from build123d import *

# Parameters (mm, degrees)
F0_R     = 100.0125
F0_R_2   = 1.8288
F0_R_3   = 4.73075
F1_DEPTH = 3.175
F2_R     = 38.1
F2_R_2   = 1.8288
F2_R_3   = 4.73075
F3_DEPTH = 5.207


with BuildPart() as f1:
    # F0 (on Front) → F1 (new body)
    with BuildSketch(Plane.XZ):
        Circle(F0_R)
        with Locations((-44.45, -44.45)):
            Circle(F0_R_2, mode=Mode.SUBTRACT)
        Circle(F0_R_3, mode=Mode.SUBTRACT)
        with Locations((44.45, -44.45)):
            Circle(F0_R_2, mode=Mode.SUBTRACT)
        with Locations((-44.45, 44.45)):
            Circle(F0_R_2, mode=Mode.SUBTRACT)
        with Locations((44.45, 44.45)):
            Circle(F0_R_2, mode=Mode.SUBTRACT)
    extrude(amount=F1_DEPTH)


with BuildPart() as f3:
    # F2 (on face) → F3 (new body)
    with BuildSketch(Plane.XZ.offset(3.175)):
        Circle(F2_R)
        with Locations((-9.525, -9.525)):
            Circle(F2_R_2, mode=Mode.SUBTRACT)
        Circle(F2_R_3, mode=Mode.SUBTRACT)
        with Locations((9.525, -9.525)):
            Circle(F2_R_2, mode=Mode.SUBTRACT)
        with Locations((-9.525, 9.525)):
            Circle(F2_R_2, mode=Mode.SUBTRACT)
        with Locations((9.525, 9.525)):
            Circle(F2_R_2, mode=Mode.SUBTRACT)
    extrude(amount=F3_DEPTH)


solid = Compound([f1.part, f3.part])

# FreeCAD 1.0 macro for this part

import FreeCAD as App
import Part
import Sketcher
from FreeCAD import Vector
Q = App.Units.Quantity

doc = App.newDocument("Part")
body = doc.addObject("PartDesign::Body", "Body")

sketch1 = body.newObject("Sketcher::SketchObject", "Sketch")
sketch1.AttachmentSupport = (doc.getObject("XZ_Plane"), [""])
sketch1.MapMode = "FlatFace"
sketch1.addGeometry(Part.Circle(Vector(0, 0, 0), Vector(0, 0, 1), 100), False)
sketch1.addGeometry(Part.Circle(Vector(-44.5, -44.5, 0), Vector(0, 0, 1), 1.8), False)
sketch1.addGeometry(Part.Circle(Vector(44.5, -44.5, 0), Vector(0, 0, 1), 1.8), False)
sketch1.addGeometry(Part.Circle(Vector(-44.5, 44.5, 0), Vector(0, 0, 1), 1.8), False)
sketch1.addGeometry(Part.Circle(Vector(0, 0, 0), Vector(0, 0, 1), 4.7), False)
sketch1.addGeometry(Part.Circle(Vector(44.5, 44.5, 0), Vector(0, 0, 1), 1.8), False)
sketch1.addConstraint(Sketcher.Constraint("Coincident", 0, 3, -1, 1))
sketch1.addConstraint(Sketcher.Constraint("Coincident", 4, 3, -1, 1))
sketch1.addConstraint(Sketcher.Constraint("Equal", 1, 2))
sketch1.addConstraint(Sketcher.Constraint("Equal", 2, 3))
sketch1.addConstraint(Sketcher.Constraint("Equal", 3, 5))
sketch1.addConstraint(Sketcher.Constraint("Symmetric", 2, 3, 3, 3, -1, 1))
sketch1.addConstraint(Sketcher.Constraint("Symmetric", 1, 3, 5, 3, -1, 1))
sketch1.addConstraint(Sketcher.Constraint("Symmetric", 1, 3, 2, 3, -2))
sketch1.addConstraint(Sketcher.Constraint("Diameter", 0, Q("7.875 in")))
sketch1.addConstraint(Sketcher.Constraint("Diameter", 1, Q("0.144 in")))
sketch1.addConstraint(Sketcher.Constraint("Diameter", 4, Q("0.3725 in")))
sketch1.addConstraint(Sketcher.Constraint("DistanceX", 1, 3, 2, 3, Q("3.5 in")))
sketch1.addConstraint(Sketcher.Constraint("DistanceY", 1, 3, 3, 3, Q("3.5 in")))
pad1 = body.newObject("PartDesign::Pad", "Pad")
pad1.Profile = sketch1
pad1.Length = Q("0.125 in")
body2 = doc.addObject("PartDesign::Body", "Body001")

sketch2 = body2.newObject("Sketcher::SketchObject", "Sketch001")
sketch2.AttachmentSupport = (doc.getObject("XZ_Plane001"), [""])
sketch2.MapMode = "FlatFace"
sketch2.AttachmentOffset = App.Placement(Vector(0, 0, 0.125 * 25.4), App.Rotation())
sketch2.addGeometry(Part.Circle(Vector(0, 0, 0), Vector(0, 0, 1), 38.1), False)
sketch2.addGeometry(Part.Circle(Vector(-9.5, -9.5, 0), Vector(0, 0, 1), 1.8), False)
sketch2.addGeometry(Part.Circle(Vector(9.5, -9.5, 0), Vector(0, 0, 1), 1.8), False)
sketch2.addGeometry(Part.Circle(Vector(-9.5, 9.5, 0), Vector(0, 0, 1), 1.8), False)
sketch2.addGeometry(Part.Circle(Vector(0, 0, 0), Vector(0, 0, 1), 4.7), False)
sketch2.addGeometry(Part.Circle(Vector(9.5, 9.5, 0), Vector(0, 0, 1), 1.8), False)
sketch2.addConstraint(Sketcher.Constraint("Coincident", 0, 3, -1, 1))
sketch2.addConstraint(Sketcher.Constraint("Coincident", 4, 3, -1, 1))
sketch2.addConstraint(Sketcher.Constraint("Equal", 1, 2))
sketch2.addConstraint(Sketcher.Constraint("Equal", 2, 3))
sketch2.addConstraint(Sketcher.Constraint("Equal", 3, 5))
sketch2.addConstraint(Sketcher.Constraint("Symmetric", 2, 3, 3, 3, -1, 1))
sketch2.addConstraint(Sketcher.Constraint("Symmetric", 1, 3, 5, 3, -1, 1))
sketch2.addConstraint(Sketcher.Constraint("Symmetric", 1, 3, 2, 3, -2))
sketch2.addConstraint(Sketcher.Constraint("Diameter", 0, Q("3 in")))
sketch2.addConstraint(Sketcher.Constraint("Diameter", 1, Q("0.144 in")))
sketch2.addConstraint(Sketcher.Constraint("Diameter", 4, Q("0.3725 in")))
sketch2.addConstraint(Sketcher.Constraint("DistanceX", 1, 3, 2, 3, Q("0.75 in")))
sketch2.addConstraint(Sketcher.Constraint("DistanceY", 1, 3, 3, 3, Q("0.75 in")))
pad2 = body2.newObject("PartDesign::Pad", "Pad001")
pad2.Profile = sketch2
pad2.Length = Q("0.205 in")

doc.recompute()
